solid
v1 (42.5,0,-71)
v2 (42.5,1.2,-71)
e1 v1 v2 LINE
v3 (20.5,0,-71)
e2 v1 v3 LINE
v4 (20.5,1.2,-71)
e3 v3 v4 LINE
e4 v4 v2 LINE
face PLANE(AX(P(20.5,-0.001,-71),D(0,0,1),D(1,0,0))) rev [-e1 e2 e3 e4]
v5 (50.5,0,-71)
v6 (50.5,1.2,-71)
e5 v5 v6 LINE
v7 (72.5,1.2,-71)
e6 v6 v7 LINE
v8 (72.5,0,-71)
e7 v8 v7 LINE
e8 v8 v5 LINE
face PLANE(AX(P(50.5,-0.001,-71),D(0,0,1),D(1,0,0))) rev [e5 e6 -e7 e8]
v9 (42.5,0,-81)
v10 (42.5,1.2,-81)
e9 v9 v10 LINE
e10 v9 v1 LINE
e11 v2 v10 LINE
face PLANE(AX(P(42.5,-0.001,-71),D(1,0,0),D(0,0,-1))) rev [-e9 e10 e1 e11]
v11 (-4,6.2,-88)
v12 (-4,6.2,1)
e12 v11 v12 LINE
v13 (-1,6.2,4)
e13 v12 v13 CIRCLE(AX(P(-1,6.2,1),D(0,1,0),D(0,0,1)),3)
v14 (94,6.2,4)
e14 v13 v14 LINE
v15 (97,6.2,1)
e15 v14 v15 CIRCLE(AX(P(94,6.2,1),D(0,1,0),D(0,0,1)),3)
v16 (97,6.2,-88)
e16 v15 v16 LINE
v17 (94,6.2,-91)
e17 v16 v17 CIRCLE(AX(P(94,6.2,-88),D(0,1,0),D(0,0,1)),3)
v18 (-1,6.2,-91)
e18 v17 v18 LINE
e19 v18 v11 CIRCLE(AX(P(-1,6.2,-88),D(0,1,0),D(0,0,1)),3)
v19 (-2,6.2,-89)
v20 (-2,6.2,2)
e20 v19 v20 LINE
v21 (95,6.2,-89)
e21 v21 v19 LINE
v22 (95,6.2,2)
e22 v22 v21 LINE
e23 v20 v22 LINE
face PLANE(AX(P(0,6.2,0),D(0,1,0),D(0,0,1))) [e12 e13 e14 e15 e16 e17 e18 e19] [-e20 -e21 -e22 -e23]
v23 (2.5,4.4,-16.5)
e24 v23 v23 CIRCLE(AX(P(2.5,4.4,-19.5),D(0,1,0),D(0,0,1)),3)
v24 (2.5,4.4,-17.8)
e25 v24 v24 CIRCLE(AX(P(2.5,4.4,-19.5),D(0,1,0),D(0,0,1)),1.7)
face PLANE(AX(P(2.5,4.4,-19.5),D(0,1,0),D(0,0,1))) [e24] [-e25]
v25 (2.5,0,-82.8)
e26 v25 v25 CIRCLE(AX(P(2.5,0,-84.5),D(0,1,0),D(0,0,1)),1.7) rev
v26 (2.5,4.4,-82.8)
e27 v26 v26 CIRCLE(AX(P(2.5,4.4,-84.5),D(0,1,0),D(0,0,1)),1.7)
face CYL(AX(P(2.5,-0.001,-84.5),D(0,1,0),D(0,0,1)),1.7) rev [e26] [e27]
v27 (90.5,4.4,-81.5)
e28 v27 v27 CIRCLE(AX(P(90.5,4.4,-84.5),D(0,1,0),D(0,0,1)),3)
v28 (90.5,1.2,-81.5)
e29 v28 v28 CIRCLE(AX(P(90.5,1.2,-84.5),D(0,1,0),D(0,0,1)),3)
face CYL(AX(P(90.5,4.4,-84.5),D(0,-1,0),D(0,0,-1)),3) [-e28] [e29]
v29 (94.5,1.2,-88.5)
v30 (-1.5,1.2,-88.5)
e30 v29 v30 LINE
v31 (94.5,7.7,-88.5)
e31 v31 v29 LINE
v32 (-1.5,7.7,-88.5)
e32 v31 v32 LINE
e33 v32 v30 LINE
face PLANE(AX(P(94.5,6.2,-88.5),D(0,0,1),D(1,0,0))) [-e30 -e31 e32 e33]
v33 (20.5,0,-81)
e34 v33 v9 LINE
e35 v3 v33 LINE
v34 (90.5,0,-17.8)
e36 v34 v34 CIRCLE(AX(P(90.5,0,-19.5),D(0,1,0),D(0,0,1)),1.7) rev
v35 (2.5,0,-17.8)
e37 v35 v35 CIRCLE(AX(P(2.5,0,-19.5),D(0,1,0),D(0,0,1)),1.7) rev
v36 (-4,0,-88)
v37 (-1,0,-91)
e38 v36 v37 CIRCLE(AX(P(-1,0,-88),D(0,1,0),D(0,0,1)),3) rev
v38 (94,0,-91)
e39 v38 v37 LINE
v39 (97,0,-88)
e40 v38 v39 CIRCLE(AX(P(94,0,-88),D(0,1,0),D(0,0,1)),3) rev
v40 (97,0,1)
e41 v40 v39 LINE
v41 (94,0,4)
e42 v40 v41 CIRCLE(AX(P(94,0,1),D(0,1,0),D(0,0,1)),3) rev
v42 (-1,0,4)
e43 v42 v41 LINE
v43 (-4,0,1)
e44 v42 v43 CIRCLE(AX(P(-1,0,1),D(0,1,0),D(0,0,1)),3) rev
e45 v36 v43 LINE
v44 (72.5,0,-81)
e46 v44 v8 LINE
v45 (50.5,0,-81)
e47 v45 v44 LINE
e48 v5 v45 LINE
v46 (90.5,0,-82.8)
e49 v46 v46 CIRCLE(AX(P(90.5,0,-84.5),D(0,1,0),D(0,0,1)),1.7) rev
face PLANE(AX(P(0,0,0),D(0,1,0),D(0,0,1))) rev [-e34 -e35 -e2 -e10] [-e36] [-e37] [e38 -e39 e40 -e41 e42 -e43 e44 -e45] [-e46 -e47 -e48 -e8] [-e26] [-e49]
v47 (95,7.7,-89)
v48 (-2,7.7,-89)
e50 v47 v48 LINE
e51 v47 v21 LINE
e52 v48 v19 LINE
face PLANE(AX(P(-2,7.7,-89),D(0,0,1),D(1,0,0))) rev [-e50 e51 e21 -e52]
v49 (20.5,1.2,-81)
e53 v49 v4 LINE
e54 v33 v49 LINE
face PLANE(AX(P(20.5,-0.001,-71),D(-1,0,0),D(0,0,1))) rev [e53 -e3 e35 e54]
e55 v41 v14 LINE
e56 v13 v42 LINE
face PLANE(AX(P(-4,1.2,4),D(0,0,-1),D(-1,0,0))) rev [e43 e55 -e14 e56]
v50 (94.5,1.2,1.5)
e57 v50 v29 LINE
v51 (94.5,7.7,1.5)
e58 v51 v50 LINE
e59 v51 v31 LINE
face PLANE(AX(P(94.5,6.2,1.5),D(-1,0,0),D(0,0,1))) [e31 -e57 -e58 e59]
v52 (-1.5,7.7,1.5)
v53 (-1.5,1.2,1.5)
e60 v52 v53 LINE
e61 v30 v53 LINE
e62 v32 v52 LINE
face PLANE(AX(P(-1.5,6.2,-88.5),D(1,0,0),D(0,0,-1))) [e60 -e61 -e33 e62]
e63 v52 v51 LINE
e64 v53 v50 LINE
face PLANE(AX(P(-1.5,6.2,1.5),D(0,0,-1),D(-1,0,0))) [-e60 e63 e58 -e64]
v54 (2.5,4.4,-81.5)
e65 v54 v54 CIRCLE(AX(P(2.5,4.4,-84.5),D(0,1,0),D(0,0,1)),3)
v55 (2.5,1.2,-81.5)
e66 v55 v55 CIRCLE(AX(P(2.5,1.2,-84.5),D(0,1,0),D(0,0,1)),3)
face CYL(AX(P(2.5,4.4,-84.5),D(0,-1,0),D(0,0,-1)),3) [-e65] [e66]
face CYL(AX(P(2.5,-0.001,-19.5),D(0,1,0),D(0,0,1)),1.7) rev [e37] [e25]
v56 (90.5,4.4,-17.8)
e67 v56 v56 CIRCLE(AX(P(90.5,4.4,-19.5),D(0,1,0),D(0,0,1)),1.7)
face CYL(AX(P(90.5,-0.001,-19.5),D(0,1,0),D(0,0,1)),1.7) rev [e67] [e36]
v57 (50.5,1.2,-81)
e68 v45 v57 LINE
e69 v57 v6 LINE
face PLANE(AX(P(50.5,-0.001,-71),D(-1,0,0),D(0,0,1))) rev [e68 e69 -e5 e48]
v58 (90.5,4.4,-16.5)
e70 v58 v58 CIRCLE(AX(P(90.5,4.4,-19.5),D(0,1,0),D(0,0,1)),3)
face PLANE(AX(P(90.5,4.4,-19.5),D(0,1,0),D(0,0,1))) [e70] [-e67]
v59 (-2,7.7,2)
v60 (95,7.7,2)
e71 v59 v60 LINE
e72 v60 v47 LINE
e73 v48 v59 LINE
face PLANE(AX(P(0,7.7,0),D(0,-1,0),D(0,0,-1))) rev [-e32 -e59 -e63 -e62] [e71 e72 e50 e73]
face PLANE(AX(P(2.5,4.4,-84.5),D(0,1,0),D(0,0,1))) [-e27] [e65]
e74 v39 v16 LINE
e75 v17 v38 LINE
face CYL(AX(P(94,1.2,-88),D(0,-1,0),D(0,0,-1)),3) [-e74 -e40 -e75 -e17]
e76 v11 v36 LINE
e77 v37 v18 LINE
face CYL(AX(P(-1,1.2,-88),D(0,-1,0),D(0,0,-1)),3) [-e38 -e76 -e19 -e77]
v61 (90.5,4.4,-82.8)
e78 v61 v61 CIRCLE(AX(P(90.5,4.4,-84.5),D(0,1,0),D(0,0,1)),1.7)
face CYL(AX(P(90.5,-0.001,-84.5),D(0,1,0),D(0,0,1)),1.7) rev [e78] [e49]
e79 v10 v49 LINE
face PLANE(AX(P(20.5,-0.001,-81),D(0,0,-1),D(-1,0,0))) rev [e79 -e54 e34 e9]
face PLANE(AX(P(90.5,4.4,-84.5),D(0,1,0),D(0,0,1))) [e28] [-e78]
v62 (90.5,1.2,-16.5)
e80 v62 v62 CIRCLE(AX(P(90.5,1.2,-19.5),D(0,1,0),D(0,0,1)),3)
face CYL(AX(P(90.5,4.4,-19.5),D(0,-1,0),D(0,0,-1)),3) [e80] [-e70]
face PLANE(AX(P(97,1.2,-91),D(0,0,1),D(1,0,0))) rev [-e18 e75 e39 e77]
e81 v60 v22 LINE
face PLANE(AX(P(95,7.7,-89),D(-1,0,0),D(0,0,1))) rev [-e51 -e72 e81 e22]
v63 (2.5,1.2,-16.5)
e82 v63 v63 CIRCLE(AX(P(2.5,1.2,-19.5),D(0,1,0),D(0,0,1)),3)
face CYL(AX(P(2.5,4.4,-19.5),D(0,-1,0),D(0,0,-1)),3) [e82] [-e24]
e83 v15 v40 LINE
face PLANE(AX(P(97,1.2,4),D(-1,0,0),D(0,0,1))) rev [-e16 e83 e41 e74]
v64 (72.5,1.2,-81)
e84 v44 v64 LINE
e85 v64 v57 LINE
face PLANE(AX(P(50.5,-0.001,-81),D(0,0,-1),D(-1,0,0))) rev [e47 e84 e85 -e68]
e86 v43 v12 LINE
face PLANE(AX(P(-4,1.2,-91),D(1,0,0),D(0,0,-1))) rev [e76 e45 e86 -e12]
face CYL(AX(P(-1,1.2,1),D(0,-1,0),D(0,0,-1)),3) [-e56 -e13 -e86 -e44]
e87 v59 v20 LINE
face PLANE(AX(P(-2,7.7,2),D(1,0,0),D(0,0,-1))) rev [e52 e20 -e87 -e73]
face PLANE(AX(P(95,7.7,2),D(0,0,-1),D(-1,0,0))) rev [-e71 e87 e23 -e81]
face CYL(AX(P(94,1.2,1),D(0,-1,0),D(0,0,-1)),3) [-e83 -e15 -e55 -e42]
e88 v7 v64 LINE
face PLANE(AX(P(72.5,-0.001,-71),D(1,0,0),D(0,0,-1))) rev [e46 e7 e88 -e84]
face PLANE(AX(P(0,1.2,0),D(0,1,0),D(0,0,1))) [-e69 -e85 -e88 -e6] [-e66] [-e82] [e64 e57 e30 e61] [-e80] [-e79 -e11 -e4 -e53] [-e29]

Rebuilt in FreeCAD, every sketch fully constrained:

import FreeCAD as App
import Part
import Sketcher

V = App.Vector
Q = App.Units.Quantity


def edges_at(feature, points):
    """Names of the edges that pass closest to the given points."""
    edges = feature.Shape.Edges
    near = lambda p: min(range(len(edges)), key=lambda i: edges[i].distToShape(Part.Vertex(*p))[0])
    return sorted({f"Edge{near(p) + 1}" for p in points})


def add_polygon(sketch, points):
    """Adds a closed chain of lines whose ends are joined by coincident constraints."""
    first, n = sketch.GeometryCount, len(points)
    for a, b in zip(points, points[1:] + points[:1]):
        sketch.addGeometry(Part.LineSegment(App.Vector(*a, 0), App.Vector(*b, 0)), False)
    for i in range(n):
        sketch.addConstraint(Sketcher.Constraint("Coincident", first + i, 2, first + (i + 1) % n, 1))

doc = App.newDocument("Part")
body = doc.addObject("PartDesign::Body", "Body")

sketch1 = body.newObject("Sketcher::SketchObject", "Sketch")
sketch1.AttachmentSupport = (doc.getObject("XZ_Plane"), [""])
sketch1.MapMode = "FlatFace"
add_polygon(sketch1, [(-4, -91), (-4, 4), (97, 4), (97, -91)])
sketch1.addConstraint([
    Sketcher.Constraint("Vertical", 0),
    Sketcher.Constraint("Horizontal", 1),
    Sketcher.Constraint("Vertical", 2),
    Sketcher.Constraint("Horizontal", 3),
    Sketcher.Constraint("DistanceX", 1, 1, 1, 2, Q("101 mm")),
    Sketcher.Constraint("DistanceY", 0, 1, 0, 2, Q("95 mm")),
    Sketcher.Constraint("DistanceX", 0, 2, -1, 1, Q("4 mm")),
    Sketcher.Constraint("DistanceY", -1, 1, 0, 2, Q("4 mm")),
])
pad1 = body.newObject("PartDesign::Pad", "Pad")
pad1.Profile = sketch1
pad1.Length = 1.2
pad1.Reversed = True

sketch2 = body.newObject("Sketcher::SketchObject", "Sketch001")
sketch2.AttachmentSupport = (doc.getObject("XZ_Plane"), [""])
sketch2.MapMode = "FlatFace"
sketch2.AttachmentOffset = App.Placement(V(0, 0, -1.2), App.Rotation())
add_polygon(sketch2, [(-4, -91), (-4, 4), (97, 4), (97, -91)])
add_polygon(sketch2, [(94, 2), (-2, 2), (-2, -88), (94, -88)])
sketch2.addConstraint([
    Sketcher.Constraint("Vertical", 0),
    Sketcher.Constraint("Horizontal", 1),
    Sketcher.Constraint("Vertical", 2),
    Sketcher.Constraint("Horizontal", 3),
    Sketcher.Constraint("Horizontal", 4),
    Sketcher.Constraint("Vertical", 5),
    Sketcher.Constraint("Horizontal", 6),
    Sketcher.Constraint("Vertical", 7),
    Sketcher.Constraint("DistanceX", 1, 1, 1, 2, Q("101 mm")),
    Sketcher.Constraint("DistanceX", 4, 2, 4, 1, Q("96 mm")),
    Sketcher.Constraint("DistanceY", 0, 1, 0, 2, Q("95 mm")),
    Sketcher.Constraint("DistanceY", 5, 2, 5, 1, Q("90 mm")),
    Sketcher.Constraint("DistanceX", 0, 2, -1, 1, Q("4 mm")),
    Sketcher.Constraint("DistanceY", -1, 1, 0, 2, Q("4 mm")),
    Sketcher.Constraint("DistanceX", 4, 2, -1, 1, Q("1.5 mm")),
    Sketcher.Constraint("DistanceY", -1, 1, 4, 2, Q("1.5 mm")),
])
pad2 = body.newObject("PartDesign::Pad", "Pad001")
pad2.Profile = sketch2
pad2.Length = 5
pad2.Reversed = True

sketch3 = body.newObject("Sketcher::SketchObject", "Sketch002")
sketch3.AttachmentSupport = (doc.getObject("XZ_Plane"), [""])
sketch3.MapMode = "FlatFace"
sketch3.AttachmentOffset = App.Placement(V(0, 0, -1.2), App.Rotation())
sketch3.addGeometry([
    Part.Circle(V(2.5, -84.5, 0), V(0, 0, 1), 3),
    Part.Circle(V(90.5, -84.5, 0), V(0, 0, 1), 3),
    Part.Circle(V(90.5, -19.5, 0), V(0, 0, 1), 3),
    Part.Circle(V(2.5, -19.5, 0), V(0, 0, 1), 3),
], False)
sketch3.addConstraint([
    Sketcher.Constraint("Equal", 0, 1),
    Sketcher.Constraint("Equal", 1, 2),
    Sketcher.Constraint("Equal", 2, 3),
    Sketcher.Constraint("Horizontal", 0, 3, 1, 3),
    Sketcher.Constraint("Horizontal", 2, 3, 3, 3),
    Sketcher.Constraint("Vertical", 1, 3, 2, 3),
    Sketcher.Constraint("Vertical", 0, 3, 3, 3),
    Sketcher.Constraint("Diameter", 0, Q("6 mm")),
    Sketcher.Constraint("DistanceX", 0, 3, 1, 3, Q("88 mm")),
    Sketcher.Constraint("DistanceY", 1, 3, 2, 3, Q("65 mm")),
    Sketcher.Constraint("DistanceX", -1, 1, 0, 3, Q("2.5 mm")),
    Sketcher.Constraint("DistanceY", 0, 3, -1, 1, Q("84.5 mm")),
])
pad3 = body.newObject("PartDesign::Pad", "Pad002")
pad3.Profile = sketch3
pad3.Length = 3.2
pad3.Reversed = True

sketch4 = body.newObject("Sketcher::SketchObject", "Sketch003")
sketch4.AttachmentSupport = (doc.getObject("XZ_Plane"), [""])
sketch4.MapMode = "FlatFace"
sketch4.AttachmentOffset = App.Placement(V(0, 0, -4.4), App.Rotation())
sketch4.addGeometry(Part.Circle(V(2.5, -84.5, 0), V(0, 0, 1), 1.7), False)
sketch4.addConstraint([
    Sketcher.Constraint("Diameter", 0, Q("3.4 mm")),
    Sketcher.Constraint("DistanceX", -1, 1, 0, 3, Q("2.5 mm")),
    Sketcher.Constraint("DistanceY", 0, 3, -1, 1, Q("84.5 mm")),
])
pocket1 = body.newObject("PartDesign::Pocket", "Pocket")
pocket1.Profile = sketch4
pocket1.Type = "UpToFirst"
pocket1.Reversed = True

sketch5 = body.newObject("Sketcher::SketchObject", "Sketch004")
sketch5.AttachmentSupport = (doc.getObject("XZ_Plane"), [""])
sketch5.MapMode = "FlatFace"
sketch5.AttachmentOffset = App.Placement(V(0, 0, -4.4), App.Rotation())
sketch5.addGeometry(Part.Circle(V(90.5, -84.5, 0), V(0, 0, 1), 1.7), False)
sketch5.addConstraint([
    Sketcher.Constraint("Diameter", 0, Q("3.4 mm")),
    Sketcher.Constraint("DistanceX", -1, 1, 0, 3, Q("90.5 mm")),
    Sketcher.Constraint("DistanceY", 0, 3, -1, 1, Q("84.5 mm")),
])
pocket2 = body.newObject("PartDesign::Pocket", "Pocket001")
pocket2.Profile = sketch5
pocket2.Type = "UpToFirst"
pocket2.Reversed = True

sketch6 = body.newObject("Sketcher::SketchObject", "Sketch005")
sketch6.AttachmentSupport = (doc.getObject("XZ_Plane"), [""])
sketch6.MapMode = "FlatFace"
sketch6.AttachmentOffset = App.Placement(V(0, 0, -4.4), App.Rotation())
sketch6.addGeometry(Part.Circle(V(90.5, -19.5, 0), V(0, 0, 1), 1.7), False)
sketch6.addConstraint([
    Sketcher.Constraint("Diameter", 0, Q("3.4 mm")),
    Sketcher.Constraint("DistanceX", -1, 1, 0, 3, Q("90.5 mm")),
    Sketcher.Constraint("DistanceY", 0, 3, -1, 1, Q("19.5 mm")),
])
pocket3 = body.newObject("PartDesign::Pocket", "Pocket002")
pocket3.Profile = sketch6
pocket3.Type = "UpToFirst"
pocket3.Reversed = True

sketch7 = body.newObject("Sketcher::SketchObject", "Sketch006")
sketch7.AttachmentSupport = (doc.getObject("XZ_Plane"), [""])
sketch7.MapMode = "FlatFace"
sketch7.AttachmentOffset = App.Placement(V(0, 0, -4.4), App.Rotation())
sketch7.addGeometry(Part.Circle(V(2.5, -19.5, 0), V(0, 0, 1), 1.7), False)
sketch7.addConstraint([
    Sketcher.Constraint("Diameter", 0, Q("3.4 mm")),
    Sketcher.Constraint("DistanceX", -1, 1, 0, 3, Q("2.5 mm")),
    Sketcher.Constraint("DistanceY", 0, 3, -1, 1, Q("19.5 mm")),
])
pocket4 = body.newObject("PartDesign::Pocket", "Pocket003")
pocket4.Profile = sketch7
pocket4.Type = "UpToFirst"
pocket4.Reversed = True

sketch8 = body.newObject("Sketcher::SketchObject", "Sketch007")
sketch8.AttachmentSupport = (doc.getObject("XZ_Plane"), [""])
sketch8.MapMode = "FlatFace"
sketch8.AttachmentOffset = App.Placement(V(0, 0, -1.2), App.Rotation())
add_polygon(sketch8, [(50, -81), (50, -71), (72, -71), (72, -81)])
sketch8.addConstraint([
    Sketcher.Constraint("Vertical", 0),
    Sketcher.Constraint("Horizontal", 1),
    Sketcher.Constraint("Vertical", 2),
    Sketcher.Constraint("Horizontal", 3),
    Sketcher.Constraint("DistanceX", 1, 1, 1, 2, Q("22 mm")),
    Sketcher.Constraint("DistanceY", 0, 1, 0, 2, Q("10 mm")),
    Sketcher.Constraint("DistanceY", 0, 2, -1, 1, Q("71 mm")),
    Sketcher.Constraint("DistanceX", -1, 1, 0, 2, Q("50.5 mm")),
])
pocket5 = body.newObject("PartDesign::Pocket", "Pocket004")
pocket5.Profile = sketch8
pocket5.Type = "UpToFirst"
pocket5.Reversed = True

sketch9 = body.newObject("Sketcher::SketchObject", "Sketch008")
sketch9.AttachmentSupport = (doc.getObject("XZ_Plane"), [""])
sketch9.MapMode = "FlatFace"
sketch9.AttachmentOffset = App.Placement(V(0, 0, -1.2), App.Rotation())
add_polygon(sketch9, [(20, -81), (20, -71), (42, -71), (42, -81)])
sketch9.addConstraint([
    Sketcher.Constraint("Vertical", 0),
    Sketcher.Constraint("Horizontal", 1),
    Sketcher.Constraint("Vertical", 2),
    Sketcher.Constraint("Horizontal", 3),
    Sketcher.Constraint("DistanceX", 1, 1, 1, 2, Q("22 mm")),
    Sketcher.Constraint("DistanceY", 0, 1, 0, 2, Q("10 mm")),
    Sketcher.Constraint("DistanceY", 0, 2, -1, 1, Q("71 mm")),
    Sketcher.Constraint("DistanceX", -1, 1, 0, 2, Q("20.5 mm")),
])
pocket6 = body.newObject("PartDesign::Pocket", "Pocket005")
pocket6.Profile = sketch9
pocket6.Type = "UpToFirst"
pocket6.Reversed = True
doc.recompute()

fillet = body.newObject("PartDesign::Fillet", "Fillet")
fillet.Base = (pocket6, edges_at(pocket6, [
    (-4, 3.1, -91),
    (97, 3.1, -91),
    (97, 3.1, 4),
    (-4, 3.1, 4),
]))
fillet.Radius = 3

sketch10 = body.newObject("Sketcher::SketchObject", "Sketch009")
sketch10.AttachmentSupport = (doc.getObject("XZ_Plane"), [""])
sketch10.MapMode = "FlatFace"
sketch10.AttachmentOffset = App.Placement(V(0, 0, -6.2), App.Rotation())
add_polygon(sketch10, [(-2, -89), (-2, 2), (95, 2), (95, -89)])
add_polygon(sketch10, [(94, 2), (-2, 2), (-2, -88), (94, -88)])
sketch10.addConstraint([
    Sketcher.Constraint("Vertical", 0),
    Sketcher.Constraint("Horizontal", 1),
    Sketcher.Constraint("Vertical", 2),
    Sketcher.Constraint("Horizontal", 3),
    Sketcher.Constraint("Horizontal", 4),
    Sketcher.Constraint("Vertical", 5),
    Sketcher.Constraint("Horizontal", 6),
    Sketcher.Constraint("Vertical", 7),
    Sketcher.Constraint("DistanceX", 1, 1, 1, 2, Q("97 mm")),
    Sketcher.Constraint("DistanceX", 4, 2, 4, 1, Q("96 mm")),
    Sketcher.Constraint("DistanceY", 0, 1, 0, 2, Q("91 mm")),
    Sketcher.Constraint("DistanceY", 5, 2, 5, 1, Q("90 mm")),
    Sketcher.Constraint("DistanceX", 0, 2, -1, 1, Q("2 mm")),
    Sketcher.Constraint("DistanceY", -1, 1, 0, 2, Q("2 mm")),
    Sketcher.Constraint("DistanceX", 4, 2, -1, 1, Q("1.5 mm")),
    Sketcher.Constraint("DistanceY", -1, 1, 4, 2, Q("1.5 mm")),
])
pad4 = body.newObject("PartDesign::Pad", "Pad003")
pad4.Profile = sketch10
pad4.Length = 1.5
pad4.Reversed = True

doc.recompute()
